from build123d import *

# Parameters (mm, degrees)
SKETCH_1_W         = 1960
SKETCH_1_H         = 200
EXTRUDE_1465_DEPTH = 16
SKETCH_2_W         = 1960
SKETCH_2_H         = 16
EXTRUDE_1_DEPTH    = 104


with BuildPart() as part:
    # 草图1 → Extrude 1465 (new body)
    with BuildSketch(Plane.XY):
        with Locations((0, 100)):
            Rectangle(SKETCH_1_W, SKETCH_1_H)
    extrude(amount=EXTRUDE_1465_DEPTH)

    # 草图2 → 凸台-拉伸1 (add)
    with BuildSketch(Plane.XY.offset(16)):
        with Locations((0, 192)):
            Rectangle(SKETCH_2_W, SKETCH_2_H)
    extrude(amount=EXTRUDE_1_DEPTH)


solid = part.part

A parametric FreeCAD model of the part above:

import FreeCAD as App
import Part
import Sketcher

V = App.Vector
Q = App.Units.Quantity


def add_polygon(sketch, points):
    """Adds a closed chain of lines whose ends are joined by coincident constraints."""
    first, n = sketch.GeometryCount, len(points)
    for a, b in zip(points, points[1:] + points[:1]):
        sketch.addGeometry(Part.LineSegment(App.Vector(*a, 0), App.Vector(*b, 0)), False)
    for i in range(n):
        sketch.addConstraint(Sketcher.Constraint("Coincident", first + i, 2, first + (i + 1) % n, 1))

doc = App.newDocument("Part")
body = doc.addObject("PartDesign::Body", "Body")

sketch1 = body.newObject("Sketcher::SketchObject", "Sketch")
sketch1.AttachmentSupport = (doc.getObject("XY_Plane"), [""])
sketch1.MapMode = "FlatFace"
add_polygon(sketch1, [(-980, 200), (-980, 0), (980, 0), (980, 200)])
sketch1.addConstraint([
    Sketcher.Constraint("Vertical", 0),
    Sketcher.Constraint("Horizontal", 1),
    Sketcher.Constraint("Vertical", 2),
    Sketcher.Constraint("Horizontal", 3),
    Sketcher.Constraint("Symmetric", 0, 2, 1, 2, -1, 1),
    Sketcher.Constraint("DistanceX", 1, 1, 1, 2, Q("1960 mm")),
    Sketcher.Constraint("DistanceY", 0, 2, 0, 1, Q("200 mm")),
])
pad1 = body.newObject("PartDesign::Pad", "Pad")
pad1.Profile = sketch1
pad1.Length = 16

sketch2 = body.newObject("Sketcher::SketchObject", "Sketch001")
sketch2.AttachmentSupport = (doc.getObject("XY_Plane"), [""])
sketch2.MapMode = "FlatFace"
sketch2.AttachmentOffset = App.Placement(V(0, 0, 16), App.Rotation())
add_polygon(sketch2, [(-980, 200), (-980, 184), (980, 184), (980, 200)])
sketch2.addConstraint([
    Sketcher.Constraint("Vertical", 0),
    Sketcher.Constraint("Horizontal", 1),
    Sketcher.Constraint("Vertical", 2),
    Sketcher.Constraint("Horizontal", 3),
    Sketcher.Constraint("DistanceX", 1, 1, 1, 2, Q("1960 mm")),
    Sketcher.Constraint("DistanceY", 0, 2, 0, 1, Q("16 mm")),
    Sketcher.Constraint("DistanceX", 0, 2, -1, 1, Q("980 mm")),
    Sketcher.Constraint("DistanceY", -1, 1, 0, 2, Q("184 mm")),
])
pad2 = body.newObject("PartDesign::Pad", "Pad001")
pad2.Profile = sketch2
pad2.Length = 104

doc.recompute()
